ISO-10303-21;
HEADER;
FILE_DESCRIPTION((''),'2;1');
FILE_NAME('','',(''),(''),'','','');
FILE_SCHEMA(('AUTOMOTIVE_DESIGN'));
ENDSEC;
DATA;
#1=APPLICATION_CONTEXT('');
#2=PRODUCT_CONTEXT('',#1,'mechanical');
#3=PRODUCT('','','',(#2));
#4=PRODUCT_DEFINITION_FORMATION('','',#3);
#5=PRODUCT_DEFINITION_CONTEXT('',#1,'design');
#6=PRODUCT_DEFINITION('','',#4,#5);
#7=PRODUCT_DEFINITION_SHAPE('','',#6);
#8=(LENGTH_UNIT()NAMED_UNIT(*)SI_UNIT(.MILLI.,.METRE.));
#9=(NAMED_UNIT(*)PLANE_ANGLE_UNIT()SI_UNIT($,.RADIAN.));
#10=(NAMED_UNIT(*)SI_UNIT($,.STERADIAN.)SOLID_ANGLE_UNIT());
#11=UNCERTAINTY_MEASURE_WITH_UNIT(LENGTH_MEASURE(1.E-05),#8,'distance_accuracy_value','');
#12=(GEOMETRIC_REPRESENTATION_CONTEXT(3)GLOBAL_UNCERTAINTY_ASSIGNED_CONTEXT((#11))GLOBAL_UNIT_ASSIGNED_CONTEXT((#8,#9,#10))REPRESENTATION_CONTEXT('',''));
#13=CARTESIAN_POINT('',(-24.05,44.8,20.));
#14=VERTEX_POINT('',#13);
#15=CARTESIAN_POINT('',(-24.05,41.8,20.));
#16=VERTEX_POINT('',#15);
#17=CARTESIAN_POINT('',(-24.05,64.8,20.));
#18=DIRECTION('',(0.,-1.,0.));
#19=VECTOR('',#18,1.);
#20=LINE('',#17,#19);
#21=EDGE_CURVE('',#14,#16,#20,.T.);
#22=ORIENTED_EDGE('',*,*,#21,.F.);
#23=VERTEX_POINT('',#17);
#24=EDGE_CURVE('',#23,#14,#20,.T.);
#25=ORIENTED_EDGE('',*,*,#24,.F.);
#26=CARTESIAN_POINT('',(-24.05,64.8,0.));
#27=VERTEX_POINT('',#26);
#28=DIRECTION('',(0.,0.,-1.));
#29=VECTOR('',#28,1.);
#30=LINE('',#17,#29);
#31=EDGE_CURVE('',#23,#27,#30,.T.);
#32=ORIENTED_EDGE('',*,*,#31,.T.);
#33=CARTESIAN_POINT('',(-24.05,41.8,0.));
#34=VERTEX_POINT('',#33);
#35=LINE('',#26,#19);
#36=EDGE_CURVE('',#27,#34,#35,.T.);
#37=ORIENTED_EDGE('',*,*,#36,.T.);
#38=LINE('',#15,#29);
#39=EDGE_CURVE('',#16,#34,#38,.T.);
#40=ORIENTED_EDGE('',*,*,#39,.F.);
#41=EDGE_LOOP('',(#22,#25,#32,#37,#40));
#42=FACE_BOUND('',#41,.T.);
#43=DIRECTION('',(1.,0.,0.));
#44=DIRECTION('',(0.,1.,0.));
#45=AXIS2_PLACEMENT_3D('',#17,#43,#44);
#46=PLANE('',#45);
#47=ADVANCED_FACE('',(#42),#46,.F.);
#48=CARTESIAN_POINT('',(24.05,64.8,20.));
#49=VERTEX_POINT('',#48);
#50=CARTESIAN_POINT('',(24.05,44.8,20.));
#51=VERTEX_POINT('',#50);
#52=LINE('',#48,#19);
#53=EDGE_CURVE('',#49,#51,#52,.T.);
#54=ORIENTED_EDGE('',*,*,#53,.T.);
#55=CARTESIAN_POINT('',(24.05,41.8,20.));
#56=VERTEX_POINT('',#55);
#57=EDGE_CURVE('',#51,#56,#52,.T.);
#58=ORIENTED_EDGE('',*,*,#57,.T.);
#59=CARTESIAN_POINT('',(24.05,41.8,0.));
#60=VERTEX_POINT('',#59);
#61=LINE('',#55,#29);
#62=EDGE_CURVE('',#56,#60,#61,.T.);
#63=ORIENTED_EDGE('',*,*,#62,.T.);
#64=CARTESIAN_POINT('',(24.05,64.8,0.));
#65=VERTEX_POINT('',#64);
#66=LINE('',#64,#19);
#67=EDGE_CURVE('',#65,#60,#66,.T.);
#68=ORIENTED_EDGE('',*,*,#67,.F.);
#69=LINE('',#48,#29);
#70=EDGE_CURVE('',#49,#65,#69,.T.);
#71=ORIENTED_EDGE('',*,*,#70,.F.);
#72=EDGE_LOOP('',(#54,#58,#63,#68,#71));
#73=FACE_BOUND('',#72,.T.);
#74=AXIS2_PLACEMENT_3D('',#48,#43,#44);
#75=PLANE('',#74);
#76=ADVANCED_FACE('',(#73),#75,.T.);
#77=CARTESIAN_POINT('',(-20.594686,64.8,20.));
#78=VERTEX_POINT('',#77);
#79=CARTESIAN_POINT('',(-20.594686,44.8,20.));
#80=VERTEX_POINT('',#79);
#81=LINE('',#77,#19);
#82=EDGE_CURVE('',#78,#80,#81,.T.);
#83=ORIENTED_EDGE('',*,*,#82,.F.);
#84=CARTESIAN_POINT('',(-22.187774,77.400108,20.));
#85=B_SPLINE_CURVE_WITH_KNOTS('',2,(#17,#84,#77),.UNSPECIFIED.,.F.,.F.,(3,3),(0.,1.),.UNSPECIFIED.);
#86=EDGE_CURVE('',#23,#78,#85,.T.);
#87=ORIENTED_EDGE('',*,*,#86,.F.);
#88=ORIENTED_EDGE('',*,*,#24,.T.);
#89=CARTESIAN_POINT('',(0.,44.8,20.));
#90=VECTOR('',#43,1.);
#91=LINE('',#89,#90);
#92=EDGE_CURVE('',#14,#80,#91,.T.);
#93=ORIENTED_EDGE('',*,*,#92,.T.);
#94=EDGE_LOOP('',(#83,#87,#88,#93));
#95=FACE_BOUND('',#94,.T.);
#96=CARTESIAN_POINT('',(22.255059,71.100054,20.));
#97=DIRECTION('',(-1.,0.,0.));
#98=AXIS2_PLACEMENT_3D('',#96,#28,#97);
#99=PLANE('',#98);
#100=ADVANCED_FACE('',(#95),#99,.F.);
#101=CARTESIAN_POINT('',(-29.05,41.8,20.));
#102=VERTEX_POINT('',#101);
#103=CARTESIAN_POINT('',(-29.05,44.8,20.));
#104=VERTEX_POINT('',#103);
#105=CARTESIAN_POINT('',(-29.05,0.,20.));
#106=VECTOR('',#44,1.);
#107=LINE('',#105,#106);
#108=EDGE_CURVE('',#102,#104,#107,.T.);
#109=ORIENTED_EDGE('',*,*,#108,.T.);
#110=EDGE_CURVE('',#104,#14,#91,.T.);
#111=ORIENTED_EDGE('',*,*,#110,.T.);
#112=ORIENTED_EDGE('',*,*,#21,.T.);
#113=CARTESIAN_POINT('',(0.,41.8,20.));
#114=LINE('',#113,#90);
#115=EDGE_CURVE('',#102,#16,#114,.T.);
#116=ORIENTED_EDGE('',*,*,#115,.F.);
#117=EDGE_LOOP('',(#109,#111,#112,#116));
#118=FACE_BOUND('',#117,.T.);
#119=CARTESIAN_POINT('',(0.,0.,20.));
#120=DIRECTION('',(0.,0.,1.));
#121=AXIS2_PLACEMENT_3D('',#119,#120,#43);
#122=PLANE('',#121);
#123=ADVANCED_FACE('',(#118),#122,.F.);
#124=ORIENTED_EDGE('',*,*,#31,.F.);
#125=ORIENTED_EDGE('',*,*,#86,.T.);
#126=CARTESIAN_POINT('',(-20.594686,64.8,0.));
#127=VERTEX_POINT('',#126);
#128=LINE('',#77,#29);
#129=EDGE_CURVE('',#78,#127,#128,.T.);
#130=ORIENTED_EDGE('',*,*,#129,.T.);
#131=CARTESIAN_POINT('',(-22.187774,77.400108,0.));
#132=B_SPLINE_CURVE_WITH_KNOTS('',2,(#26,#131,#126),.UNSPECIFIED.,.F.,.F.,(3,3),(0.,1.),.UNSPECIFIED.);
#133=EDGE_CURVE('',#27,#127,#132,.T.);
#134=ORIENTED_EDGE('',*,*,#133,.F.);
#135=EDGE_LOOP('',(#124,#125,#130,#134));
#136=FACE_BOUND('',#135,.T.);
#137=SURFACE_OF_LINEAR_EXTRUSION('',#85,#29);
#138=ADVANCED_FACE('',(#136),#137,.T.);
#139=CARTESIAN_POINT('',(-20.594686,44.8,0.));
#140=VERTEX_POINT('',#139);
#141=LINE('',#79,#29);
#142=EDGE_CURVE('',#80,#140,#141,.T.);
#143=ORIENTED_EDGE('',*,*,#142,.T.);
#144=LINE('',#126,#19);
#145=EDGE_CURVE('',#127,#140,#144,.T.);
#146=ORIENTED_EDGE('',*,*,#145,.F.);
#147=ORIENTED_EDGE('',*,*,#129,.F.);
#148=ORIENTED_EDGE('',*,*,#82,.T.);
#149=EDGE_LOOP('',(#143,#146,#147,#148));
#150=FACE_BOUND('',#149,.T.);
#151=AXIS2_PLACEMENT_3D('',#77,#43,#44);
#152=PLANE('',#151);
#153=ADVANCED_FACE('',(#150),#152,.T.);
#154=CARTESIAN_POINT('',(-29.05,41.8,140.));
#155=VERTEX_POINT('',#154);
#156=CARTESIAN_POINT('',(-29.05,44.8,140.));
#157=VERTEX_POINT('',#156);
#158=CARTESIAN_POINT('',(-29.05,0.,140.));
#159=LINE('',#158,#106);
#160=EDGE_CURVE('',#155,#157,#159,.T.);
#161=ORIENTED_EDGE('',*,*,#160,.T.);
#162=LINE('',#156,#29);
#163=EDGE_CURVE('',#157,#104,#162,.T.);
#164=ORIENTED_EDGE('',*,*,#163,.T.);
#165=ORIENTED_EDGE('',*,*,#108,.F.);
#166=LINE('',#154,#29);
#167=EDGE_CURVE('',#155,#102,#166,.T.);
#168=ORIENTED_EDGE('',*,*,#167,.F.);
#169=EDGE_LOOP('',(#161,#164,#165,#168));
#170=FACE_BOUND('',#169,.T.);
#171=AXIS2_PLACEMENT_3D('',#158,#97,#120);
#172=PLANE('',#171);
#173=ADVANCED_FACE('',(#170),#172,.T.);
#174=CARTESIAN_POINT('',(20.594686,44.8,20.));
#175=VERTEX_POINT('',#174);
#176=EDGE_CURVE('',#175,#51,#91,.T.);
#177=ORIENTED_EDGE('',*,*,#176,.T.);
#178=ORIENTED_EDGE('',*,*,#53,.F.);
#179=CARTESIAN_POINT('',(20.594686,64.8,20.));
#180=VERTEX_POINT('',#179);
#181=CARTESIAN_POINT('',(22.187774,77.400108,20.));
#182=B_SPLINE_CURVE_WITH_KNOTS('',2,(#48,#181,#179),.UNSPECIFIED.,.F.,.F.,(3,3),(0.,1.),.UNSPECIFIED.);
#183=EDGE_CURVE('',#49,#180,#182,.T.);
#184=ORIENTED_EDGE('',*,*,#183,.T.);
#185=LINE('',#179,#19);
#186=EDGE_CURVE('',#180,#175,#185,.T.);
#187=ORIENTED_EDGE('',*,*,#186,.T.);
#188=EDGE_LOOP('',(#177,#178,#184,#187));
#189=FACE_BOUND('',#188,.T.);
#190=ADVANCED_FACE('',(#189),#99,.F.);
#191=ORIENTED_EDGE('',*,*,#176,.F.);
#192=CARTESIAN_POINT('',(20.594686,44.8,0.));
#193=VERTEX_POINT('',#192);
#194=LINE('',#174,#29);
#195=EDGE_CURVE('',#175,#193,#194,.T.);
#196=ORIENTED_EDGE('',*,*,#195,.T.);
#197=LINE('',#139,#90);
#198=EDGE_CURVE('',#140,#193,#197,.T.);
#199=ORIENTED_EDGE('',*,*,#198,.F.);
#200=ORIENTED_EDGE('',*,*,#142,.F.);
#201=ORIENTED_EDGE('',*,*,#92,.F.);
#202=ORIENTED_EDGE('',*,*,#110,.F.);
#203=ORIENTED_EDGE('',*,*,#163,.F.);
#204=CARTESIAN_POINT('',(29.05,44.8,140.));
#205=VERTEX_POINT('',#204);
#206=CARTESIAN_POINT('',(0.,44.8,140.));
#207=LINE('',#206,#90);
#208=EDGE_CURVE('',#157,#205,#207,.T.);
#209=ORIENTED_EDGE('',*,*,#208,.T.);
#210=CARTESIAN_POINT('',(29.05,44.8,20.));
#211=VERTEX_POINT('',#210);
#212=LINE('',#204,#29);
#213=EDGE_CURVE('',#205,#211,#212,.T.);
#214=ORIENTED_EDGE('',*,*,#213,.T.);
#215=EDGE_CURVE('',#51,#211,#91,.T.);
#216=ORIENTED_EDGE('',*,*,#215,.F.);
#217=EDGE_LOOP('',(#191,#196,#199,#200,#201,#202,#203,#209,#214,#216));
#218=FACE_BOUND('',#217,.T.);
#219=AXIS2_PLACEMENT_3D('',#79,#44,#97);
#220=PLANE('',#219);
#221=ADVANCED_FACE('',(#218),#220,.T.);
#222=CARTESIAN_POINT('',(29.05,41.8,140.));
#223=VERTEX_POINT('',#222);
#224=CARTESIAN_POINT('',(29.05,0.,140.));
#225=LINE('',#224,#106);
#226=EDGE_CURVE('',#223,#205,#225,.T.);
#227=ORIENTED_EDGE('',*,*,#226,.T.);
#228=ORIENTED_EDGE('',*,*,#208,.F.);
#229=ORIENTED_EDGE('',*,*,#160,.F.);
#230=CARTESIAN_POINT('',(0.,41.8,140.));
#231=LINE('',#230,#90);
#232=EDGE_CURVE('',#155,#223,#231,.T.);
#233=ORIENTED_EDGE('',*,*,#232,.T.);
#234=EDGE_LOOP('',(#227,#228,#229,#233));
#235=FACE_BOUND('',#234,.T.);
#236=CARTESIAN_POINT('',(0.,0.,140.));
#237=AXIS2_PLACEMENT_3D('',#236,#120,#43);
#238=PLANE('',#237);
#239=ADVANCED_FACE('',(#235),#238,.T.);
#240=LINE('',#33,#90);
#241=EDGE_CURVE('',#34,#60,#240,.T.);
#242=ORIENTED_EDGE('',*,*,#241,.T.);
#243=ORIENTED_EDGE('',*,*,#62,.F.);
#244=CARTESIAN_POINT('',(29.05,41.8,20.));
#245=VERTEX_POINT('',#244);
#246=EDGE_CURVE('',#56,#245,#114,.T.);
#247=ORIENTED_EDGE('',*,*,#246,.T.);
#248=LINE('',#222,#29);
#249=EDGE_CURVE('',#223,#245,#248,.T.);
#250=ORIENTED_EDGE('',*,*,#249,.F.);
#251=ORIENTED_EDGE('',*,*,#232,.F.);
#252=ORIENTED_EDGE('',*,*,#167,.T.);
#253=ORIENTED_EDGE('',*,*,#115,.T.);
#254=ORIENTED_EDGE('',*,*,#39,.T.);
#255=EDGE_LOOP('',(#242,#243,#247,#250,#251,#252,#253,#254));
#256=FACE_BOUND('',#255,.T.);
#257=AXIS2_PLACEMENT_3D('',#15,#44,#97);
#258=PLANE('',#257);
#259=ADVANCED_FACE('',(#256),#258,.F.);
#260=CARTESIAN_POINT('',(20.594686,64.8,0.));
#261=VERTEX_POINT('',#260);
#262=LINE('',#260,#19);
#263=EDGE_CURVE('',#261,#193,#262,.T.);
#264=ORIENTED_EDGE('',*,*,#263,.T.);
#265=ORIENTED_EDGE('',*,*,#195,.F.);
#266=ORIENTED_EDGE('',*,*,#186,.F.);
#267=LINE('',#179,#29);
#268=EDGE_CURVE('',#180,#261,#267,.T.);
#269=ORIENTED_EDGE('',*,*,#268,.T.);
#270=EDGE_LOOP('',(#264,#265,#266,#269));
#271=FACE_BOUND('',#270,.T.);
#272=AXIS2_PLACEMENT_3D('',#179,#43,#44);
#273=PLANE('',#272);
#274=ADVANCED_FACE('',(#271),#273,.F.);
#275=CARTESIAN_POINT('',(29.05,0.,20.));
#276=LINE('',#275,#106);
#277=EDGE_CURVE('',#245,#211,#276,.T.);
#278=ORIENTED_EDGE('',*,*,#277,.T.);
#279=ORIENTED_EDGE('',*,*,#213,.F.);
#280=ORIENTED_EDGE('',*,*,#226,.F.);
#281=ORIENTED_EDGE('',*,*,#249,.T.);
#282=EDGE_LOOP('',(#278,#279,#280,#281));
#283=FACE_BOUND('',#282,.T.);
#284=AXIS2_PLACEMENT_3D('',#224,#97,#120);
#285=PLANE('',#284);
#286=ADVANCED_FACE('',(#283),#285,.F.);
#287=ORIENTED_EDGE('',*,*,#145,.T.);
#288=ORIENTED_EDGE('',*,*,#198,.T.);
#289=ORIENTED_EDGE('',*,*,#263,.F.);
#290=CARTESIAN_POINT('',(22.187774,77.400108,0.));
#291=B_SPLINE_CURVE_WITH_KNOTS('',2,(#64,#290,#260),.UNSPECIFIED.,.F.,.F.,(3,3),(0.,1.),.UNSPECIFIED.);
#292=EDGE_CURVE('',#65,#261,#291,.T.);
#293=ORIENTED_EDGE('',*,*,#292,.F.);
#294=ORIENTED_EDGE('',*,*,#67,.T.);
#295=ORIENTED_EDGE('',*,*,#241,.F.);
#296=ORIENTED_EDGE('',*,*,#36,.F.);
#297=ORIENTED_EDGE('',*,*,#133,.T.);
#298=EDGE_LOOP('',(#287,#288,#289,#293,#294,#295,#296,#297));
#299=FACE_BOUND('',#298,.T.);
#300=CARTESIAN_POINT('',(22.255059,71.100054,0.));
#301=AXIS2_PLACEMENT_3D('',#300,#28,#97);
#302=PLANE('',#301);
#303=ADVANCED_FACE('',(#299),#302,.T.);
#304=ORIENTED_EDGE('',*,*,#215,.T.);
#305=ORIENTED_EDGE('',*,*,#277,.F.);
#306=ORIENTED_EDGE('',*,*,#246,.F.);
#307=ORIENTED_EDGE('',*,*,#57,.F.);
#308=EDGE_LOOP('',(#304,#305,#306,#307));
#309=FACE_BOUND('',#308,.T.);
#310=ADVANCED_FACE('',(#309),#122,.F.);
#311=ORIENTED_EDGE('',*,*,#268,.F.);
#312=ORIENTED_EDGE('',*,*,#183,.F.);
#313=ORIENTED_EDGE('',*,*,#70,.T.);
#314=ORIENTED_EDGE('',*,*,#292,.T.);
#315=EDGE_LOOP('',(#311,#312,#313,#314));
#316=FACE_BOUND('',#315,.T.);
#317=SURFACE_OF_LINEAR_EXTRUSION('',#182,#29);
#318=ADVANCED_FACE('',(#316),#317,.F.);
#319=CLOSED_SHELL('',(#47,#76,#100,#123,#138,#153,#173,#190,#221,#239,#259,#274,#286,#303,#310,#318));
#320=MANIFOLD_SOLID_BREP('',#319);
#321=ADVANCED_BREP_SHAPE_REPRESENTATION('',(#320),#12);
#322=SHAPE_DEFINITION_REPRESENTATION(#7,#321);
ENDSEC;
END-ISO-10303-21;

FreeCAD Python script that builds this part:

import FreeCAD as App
import Part
import Sketcher
from FreeCAD import Vector
Q = App.Units.Quantity

doc = App.newDocument("Part")
body = doc.addObject("PartDesign::Body", "Body")

# Sketch on XY plane
sketch1 = body.newObject("Sketcher::SketchObject", "Sketch")
sketch1.AttachmentSupport = (doc.getObject("XY_Plane"), [""])
sketch1.MapMode = "FlatFace"
sketch1.addGeometry(Part.LineSegment(Vector(-24.05, 64.8, 0), Vector(-24.05, 41.8, 0)), False)
sketch1.addGeometry(Part.LineSegment(Vector(-24.05, 41.8, 0), Vector(24.05, 41.8, 0)), False)
sketch1.addGeometry(Part.LineSegment(Vector(24.05, 41.8, 0), Vector(24.05, 64.8, 0)), False)
sketch1.addGeometry(Part.BSplineCurve([Vector(24.05, 64.8, 0), Vector(22.187774, 77.400108, 0), Vector(20.594686, 64.8, 0)], [3, 3], [0, 1], False, 2, [1, 1, 1], False), False)
sketch1.addGeometry(Part.LineSegment(Vector(20.594686, 64.8, 0), Vector(20.594686, 44.8, 0)), False)
sketch1.addGeometry(Part.LineSegment(Vector(20.594686, 44.8, 0), Vector(-20.594686, 44.8, 0)), False)
sketch1.addGeometry(Part.LineSegment(Vector(-20.594686, 44.8, 0), Vector(-20.594686, 64.8, 0)), False)
sketch1.addGeometry(Part.BSplineCurve([Vector(-24.05, 64.8, 0), Vector(-22.187774, 77.400108, 0), Vector(-20.594686, 64.8, 0)], [3, 3], [0, 1], False, 2, [1, 1, 1], False), False)
sketch1.addConstraint(Sketcher.Constraint("Block", 3))
sketch1.addConstraint(Sketcher.Constraint("Block", 7))
sketch1.addConstraint(Sketcher.Constraint("Coincident", 0, 2, 1, 1))
sketch1.addConstraint(Sketcher.Constraint("Coincident", 1, 2, 2, 1))
sketch1.addConstraint(Sketcher.Constraint("Coincident", 2, 2, 3, 1))
sketch1.addConstraint(Sketcher.Constraint("Coincident", 3, 2, 4, 1))
sketch1.addConstraint(Sketcher.Constraint("Coincident", 4, 2, 5, 1))
sketch1.addConstraint(Sketcher.Constraint("Coincident", 5, 2, 6, 1))
sketch1.addConstraint(Sketcher.Constraint("Coincident", 6, 2, 7, 2))
sketch1.addConstraint(Sketcher.Constraint("Coincident", 7, 1, 0, 1))
sketch1.addConstraint(Sketcher.Constraint("Vertical", 0))
sketch1.addConstraint(Sketcher.Constraint("Horizontal", 1))
sketch1.addConstraint(Sketcher.Constraint("Vertical", 2))
sketch1.addConstraint(Sketcher.Constraint("Vertical", 4))
sketch1.addConstraint(Sketcher.Constraint("Horizontal", 5))
sketch1.addConstraint(Sketcher.Constraint("Vertical", 6))
sketch1.addConstraint(Sketcher.Constraint("DistanceY", 0, 2, 0, 1, Q("23 mm")))
sketch1.addConstraint(Sketcher.Constraint("DistanceY", 4, 2, 4, 1, Q("20 mm")))
pad1 = body.newObject("PartDesign::Pad", "Pad")
pad1.Profile = sketch1
pad1.Length = 20

# Sketch on XY plane
sketch2 = body.newObject("Sketcher::SketchObject", "Sketch001")
sketch2.AttachmentSupport = (doc.getObject("XY_Plane"), [""])
sketch2.MapMode = "FlatFace"
sketch2.AttachmentOffset = App.Placement(Vector(0, 0, 20), App.Rotation())
sketch2.addGeometry(Part.LineSegment(Vector(-29.1, 44.8, 0), Vector(-29.1, 41.8, 0)), False)
sketch2.addGeometry(Part.LineSegment(Vector(-29.1, 41.8, 0), Vector(29.1, 41.8, 0)), False)
sketch2.addGeometry(Part.LineSegment(Vector(29.1, 41.8, 0), Vector(29.1, 44.8, 0)), False)
sketch2.addGeometry(Part.LineSegment(Vector(29.1, 44.8, 0), Vector(-29.1, 44.8, 0)), False)
sketch2.addConstraint(Sketcher.Constraint("Coincident", 0, 2, 1, 1))
sketch2.addConstraint(Sketcher.Constraint("Coincident", 1, 2, 2, 1))
sketch2.addConstraint(Sketcher.Constraint("Coincident", 2, 2, 3, 1))
sketch2.addConstraint(Sketcher.Constraint("Coincident", 3, 2, 0, 1))
sketch2.addConstraint(Sketcher.Constraint("Vertical", 0))
sketch2.addConstraint(Sketcher.Constraint("Horizontal", 1))
sketch2.addConstraint(Sketcher.Constraint("Vertical", 2))
sketch2.addConstraint(Sketcher.Constraint("Horizontal", 3))
sketch2.addConstraint(Sketcher.Constraint("DistanceY", 0, 2, 0, 1, Q("3 mm")))
sketch2.addConstraint(Sketcher.Constraint("DistanceX", 1, 1, 1, 2, Q("58.1 mm")))
sketch2.addConstraint(Sketcher.Constraint("DistanceY", -1, 1, 0, 2, Q("41.8 mm")))
sketch2.addConstraint(Sketcher.Constraint("DistanceX", 0, 2, -1, 1, Q("29.05 mm")))
pad2 = body.newObject("PartDesign::Pad", "Pad001")
pad2.Profile = sketch2
pad2.Length = 120

doc.recompute()
